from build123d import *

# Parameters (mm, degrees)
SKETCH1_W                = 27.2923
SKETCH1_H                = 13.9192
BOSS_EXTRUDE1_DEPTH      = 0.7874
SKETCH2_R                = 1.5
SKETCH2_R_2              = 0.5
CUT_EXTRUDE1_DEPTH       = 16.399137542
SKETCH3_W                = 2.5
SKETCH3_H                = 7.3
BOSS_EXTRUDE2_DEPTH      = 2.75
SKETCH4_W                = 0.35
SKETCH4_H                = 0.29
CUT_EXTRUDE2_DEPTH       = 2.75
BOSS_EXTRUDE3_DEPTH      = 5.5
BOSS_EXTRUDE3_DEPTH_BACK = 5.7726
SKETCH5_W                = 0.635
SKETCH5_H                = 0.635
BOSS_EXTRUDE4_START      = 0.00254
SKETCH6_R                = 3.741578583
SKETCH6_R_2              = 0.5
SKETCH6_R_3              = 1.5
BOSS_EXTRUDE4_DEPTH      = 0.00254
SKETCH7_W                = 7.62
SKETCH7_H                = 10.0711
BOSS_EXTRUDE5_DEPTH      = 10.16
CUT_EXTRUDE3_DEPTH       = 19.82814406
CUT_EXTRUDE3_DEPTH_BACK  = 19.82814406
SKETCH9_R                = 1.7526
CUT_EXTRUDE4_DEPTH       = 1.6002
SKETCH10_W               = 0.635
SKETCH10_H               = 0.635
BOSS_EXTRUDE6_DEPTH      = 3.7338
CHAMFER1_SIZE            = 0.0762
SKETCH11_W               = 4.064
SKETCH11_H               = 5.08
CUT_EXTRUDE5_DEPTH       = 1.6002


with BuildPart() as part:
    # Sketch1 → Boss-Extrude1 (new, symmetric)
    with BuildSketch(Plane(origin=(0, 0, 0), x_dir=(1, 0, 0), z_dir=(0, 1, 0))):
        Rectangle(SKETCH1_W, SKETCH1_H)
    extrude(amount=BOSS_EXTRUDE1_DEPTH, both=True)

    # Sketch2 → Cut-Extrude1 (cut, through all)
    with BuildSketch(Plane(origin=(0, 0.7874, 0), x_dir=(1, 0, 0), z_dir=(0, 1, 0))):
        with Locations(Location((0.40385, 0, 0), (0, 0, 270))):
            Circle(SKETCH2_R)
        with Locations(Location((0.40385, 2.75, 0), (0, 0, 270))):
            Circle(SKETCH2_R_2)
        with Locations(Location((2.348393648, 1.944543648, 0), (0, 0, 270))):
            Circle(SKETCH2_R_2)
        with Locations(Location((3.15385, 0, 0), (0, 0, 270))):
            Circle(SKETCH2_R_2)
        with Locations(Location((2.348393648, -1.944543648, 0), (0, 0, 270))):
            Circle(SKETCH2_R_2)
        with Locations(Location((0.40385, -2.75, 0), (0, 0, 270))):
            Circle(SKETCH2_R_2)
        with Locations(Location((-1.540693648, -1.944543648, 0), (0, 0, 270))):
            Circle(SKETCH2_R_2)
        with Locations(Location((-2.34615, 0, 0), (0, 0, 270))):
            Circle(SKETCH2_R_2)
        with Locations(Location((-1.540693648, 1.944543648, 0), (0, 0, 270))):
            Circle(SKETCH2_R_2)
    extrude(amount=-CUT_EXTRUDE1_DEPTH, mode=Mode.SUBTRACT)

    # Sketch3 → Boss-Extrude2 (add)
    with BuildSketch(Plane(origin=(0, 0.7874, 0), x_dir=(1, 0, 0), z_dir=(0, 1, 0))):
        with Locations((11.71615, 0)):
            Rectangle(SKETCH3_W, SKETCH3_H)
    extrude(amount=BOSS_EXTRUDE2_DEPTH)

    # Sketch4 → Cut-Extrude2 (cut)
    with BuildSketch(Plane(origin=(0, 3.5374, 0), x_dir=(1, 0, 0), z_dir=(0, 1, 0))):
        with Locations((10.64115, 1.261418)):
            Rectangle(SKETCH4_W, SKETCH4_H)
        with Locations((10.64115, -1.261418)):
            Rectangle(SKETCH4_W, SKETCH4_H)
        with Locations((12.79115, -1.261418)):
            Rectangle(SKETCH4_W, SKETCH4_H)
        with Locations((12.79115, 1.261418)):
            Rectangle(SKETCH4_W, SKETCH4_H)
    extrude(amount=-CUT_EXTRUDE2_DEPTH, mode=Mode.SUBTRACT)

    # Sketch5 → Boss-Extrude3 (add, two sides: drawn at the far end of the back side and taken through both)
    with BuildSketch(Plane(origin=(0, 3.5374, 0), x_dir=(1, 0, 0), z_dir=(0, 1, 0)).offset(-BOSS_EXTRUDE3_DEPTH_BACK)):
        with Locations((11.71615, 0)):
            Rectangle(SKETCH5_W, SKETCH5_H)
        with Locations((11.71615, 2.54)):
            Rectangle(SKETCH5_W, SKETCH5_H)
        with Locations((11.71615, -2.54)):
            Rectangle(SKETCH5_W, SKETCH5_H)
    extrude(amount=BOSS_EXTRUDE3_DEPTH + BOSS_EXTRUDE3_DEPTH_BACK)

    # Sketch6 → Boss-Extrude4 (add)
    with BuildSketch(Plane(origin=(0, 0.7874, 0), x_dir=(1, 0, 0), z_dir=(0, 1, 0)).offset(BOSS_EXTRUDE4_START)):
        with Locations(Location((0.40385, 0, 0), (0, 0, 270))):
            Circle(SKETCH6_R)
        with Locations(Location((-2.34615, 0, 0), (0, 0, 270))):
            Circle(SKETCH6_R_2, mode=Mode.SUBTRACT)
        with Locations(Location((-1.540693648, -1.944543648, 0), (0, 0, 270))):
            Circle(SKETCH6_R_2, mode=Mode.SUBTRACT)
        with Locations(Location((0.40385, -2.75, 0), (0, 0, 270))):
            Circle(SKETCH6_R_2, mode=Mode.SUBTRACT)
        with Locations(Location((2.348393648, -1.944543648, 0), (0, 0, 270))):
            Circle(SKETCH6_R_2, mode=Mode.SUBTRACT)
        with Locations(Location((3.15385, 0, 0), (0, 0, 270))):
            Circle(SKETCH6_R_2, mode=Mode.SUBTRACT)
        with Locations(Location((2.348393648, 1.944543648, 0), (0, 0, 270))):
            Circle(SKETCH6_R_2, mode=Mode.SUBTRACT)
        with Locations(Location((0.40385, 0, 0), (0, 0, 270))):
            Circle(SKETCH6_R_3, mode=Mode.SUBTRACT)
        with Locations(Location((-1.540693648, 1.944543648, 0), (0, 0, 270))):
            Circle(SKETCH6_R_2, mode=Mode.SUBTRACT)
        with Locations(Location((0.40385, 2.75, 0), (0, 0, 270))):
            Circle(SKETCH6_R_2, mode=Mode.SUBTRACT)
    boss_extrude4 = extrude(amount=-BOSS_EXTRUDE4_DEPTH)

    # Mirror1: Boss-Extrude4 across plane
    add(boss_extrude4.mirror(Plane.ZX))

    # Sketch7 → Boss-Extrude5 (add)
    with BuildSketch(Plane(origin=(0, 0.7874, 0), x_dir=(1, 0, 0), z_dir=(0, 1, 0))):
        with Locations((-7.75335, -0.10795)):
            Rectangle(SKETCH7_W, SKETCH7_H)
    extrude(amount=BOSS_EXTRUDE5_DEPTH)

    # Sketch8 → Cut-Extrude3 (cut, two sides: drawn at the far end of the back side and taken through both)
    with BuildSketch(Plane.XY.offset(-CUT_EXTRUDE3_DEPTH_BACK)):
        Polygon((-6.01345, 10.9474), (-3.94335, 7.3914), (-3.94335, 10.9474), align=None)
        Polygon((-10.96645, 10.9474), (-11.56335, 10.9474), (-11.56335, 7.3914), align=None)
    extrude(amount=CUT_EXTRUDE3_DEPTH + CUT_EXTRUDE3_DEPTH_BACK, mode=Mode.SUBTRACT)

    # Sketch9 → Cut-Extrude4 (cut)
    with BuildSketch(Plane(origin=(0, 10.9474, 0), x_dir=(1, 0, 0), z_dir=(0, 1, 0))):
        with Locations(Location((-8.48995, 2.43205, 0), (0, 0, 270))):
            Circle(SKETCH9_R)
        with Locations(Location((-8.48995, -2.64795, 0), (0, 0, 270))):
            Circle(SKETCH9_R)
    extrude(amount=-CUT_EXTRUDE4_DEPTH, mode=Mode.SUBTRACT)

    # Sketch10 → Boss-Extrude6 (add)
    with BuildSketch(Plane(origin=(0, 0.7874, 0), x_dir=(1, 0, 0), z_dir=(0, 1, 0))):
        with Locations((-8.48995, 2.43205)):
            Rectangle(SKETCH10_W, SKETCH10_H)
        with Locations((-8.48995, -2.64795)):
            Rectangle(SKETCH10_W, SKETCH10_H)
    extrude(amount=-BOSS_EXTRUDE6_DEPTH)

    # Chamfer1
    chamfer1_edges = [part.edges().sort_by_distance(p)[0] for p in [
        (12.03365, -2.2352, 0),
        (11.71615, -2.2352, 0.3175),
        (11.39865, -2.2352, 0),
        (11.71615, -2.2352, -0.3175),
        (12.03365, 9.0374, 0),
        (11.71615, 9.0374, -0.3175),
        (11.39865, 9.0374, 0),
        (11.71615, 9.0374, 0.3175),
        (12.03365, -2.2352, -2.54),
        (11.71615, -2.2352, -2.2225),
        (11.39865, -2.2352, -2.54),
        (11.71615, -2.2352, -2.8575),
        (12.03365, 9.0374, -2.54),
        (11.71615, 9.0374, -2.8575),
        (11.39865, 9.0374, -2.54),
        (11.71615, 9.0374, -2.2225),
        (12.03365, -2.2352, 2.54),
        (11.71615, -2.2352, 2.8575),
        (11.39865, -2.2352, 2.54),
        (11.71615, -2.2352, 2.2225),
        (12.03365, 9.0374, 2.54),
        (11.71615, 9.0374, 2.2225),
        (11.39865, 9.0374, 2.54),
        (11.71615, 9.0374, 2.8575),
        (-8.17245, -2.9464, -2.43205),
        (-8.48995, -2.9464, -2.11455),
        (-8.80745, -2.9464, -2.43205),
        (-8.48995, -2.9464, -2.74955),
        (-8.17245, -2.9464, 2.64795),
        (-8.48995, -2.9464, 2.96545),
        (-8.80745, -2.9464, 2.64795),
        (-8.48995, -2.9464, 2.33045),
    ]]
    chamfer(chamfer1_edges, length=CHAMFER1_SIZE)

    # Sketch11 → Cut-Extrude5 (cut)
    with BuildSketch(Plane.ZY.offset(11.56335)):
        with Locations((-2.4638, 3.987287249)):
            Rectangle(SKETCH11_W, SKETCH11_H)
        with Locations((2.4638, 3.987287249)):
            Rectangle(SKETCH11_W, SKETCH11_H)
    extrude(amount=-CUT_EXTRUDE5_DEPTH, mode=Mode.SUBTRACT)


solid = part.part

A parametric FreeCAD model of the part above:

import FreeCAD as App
import Part
import Sketcher

V = App.Vector
Q = App.Units.Quantity


def edges_at(feature, points):
    """Names of the edges that pass closest to the given points."""
    edges = feature.Shape.Edges
    near = lambda p: min(range(len(edges)), key=lambda i: edges[i].distToShape(Part.Vertex(*p))[0])
    return sorted({f"Edge{near(p) + 1}" for p in points})

doc = App.newDocument("Part")
body = doc.addObject("PartDesign::Body", "Body")

# Sketch on XZ plane
sketch1 = body.newObject("Sketcher::SketchObject", "Sketch")
sketch1.AttachmentSupport = (doc.getObject("XZ_Plane"), [""])
sketch1.MapMode = "FlatFace"
sketch1.addGeometry([
    Part.LineSegment(V(-14, -7, 0), V(-14, 7, 0)),
    Part.LineSegment(V(-14, 7, 0), V(14, 7, 0)),
    Part.LineSegment(V(14, 7, 0), V(14, -7, 0)),
    Part.LineSegment(V(14, -7, 0), V(-14, -7, 0)),
], False)
sketch1.addConstraint([
    Sketcher.Constraint("Coincident", 0, 2, 1, 1),
    Sketcher.Constraint("Coincident", 1, 2, 2, 1),
    Sketcher.Constraint("Coincident", 2, 2, 3, 1),
    Sketcher.Constraint("Coincident", 3, 2, 0, 1),
    Sketcher.Constraint("Vertical", 0),
    Sketcher.Constraint("Horizontal", 1),
    Sketcher.Constraint("Vertical", 2),
    Sketcher.Constraint("Horizontal", 3),
    Sketcher.Constraint("Symmetric", 0, 2, 2, 2, -1, 1),
    Sketcher.Constraint("DistanceY", 0, 1, 0, 2, Q("0.548 in")),
    Sketcher.Constraint("DistanceX", 1, 1, 1, 2, Q("1.0745 in")),
])
pad1 = body.newObject("PartDesign::Pad", "Pad")
pad1.Profile = sketch1
pad1.Length = Q("0.062 in")
pad1.Midplane = True

# Sketch on XZ plane
sketch2 = body.newObject("Sketcher::SketchObject", "Sketch001")
sketch2.AttachmentSupport = (doc.getObject("XZ_Plane"), [""])
sketch2.MapMode = "FlatFace"
sketch2.AttachmentOffset = App.Placement(V(0, 0, -0.031 * 25.4), App.Rotation())
sketch2.addGeometry([
    Part.Circle(V(0.4, 0, 0), V(0, 0, 1), 1.5),  # 0
    Part.Circle(V(0.4, -2.8, 0), V(0, 0, 1), 0.5),  # 1
    Part.Circle(V(2.3, -1.9, 0), V(0, 0, 1), 0.5),  # 2
    Part.Circle(V(3.2, 0, 0), V(0, 0, 1), 0.5),  # 3
    Part.Circle(V(2.3, 1.9, 0), V(0, 0, 1), 0.5),  # 4
    Part.Circle(V(0.4, 2.8, 0), V(0, 0, 1), 0.5),  # 5
    Part.Circle(V(-1.5, 1.9, 0), V(0, 0, 1), 0.5),  # 6
    Part.Circle(V(-2.3, 0, 0), V(0, 0, 1), 0.5),  # 7
    Part.Circle(V(-1.5, -1.9, 0), V(0, 0, 1), 0.5),  # 8
], False)
sketch2.addConstraint([
    Sketcher.Constraint("Equal", 1, 2),
    Sketcher.Constraint("Equal", 2, 3),
    Sketcher.Constraint("Equal", 3, 4),
    Sketcher.Constraint("Equal", 4, 5),
    Sketcher.Constraint("Equal", 5, 6),
    Sketcher.Constraint("Equal", 6, 7),
    Sketcher.Constraint("Equal", 7, 8),
    Sketcher.Constraint("Symmetric", 2, 3, 4, 3, -1),
    Sketcher.Constraint("Symmetric", 1, 3, 5, 3, -1),
    Sketcher.Constraint("Symmetric", 6, 3, 8, 3, -1),
    Sketcher.Constraint("PointOnObject", 0, 3, -1),
    Sketcher.Constraint("PointOnObject", 3, 3, -1),
    Sketcher.Constraint("PointOnObject", 7, 3, -1),
    Sketcher.Constraint("Horizontal", 4, 3, 6, 3),
    Sketcher.Constraint("Vertical", 0, 3, 1, 3),
    Sketcher.Constraint("Diameter", 0, Q("3 mm")),
    Sketcher.Constraint("Diameter", 1, Q("1 mm")),
    Sketcher.Constraint("DistanceY", 1, 3, -1, 1, Q("2.75 mm")),
    Sketcher.Constraint("DistanceX", 0, 3, 3, 3, Q("2.75 mm")),
    Sketcher.Constraint("DistanceX", 7, 3, 0, 3, Q("2.75 mm")),
    Sketcher.Constraint("DistanceX", -1, 1, 0, 3, Q("0.40385 mm")),
    Sketcher.Constraint("DistanceX", -1, 1, 2, 3, Q("2.348394 mm")),
    Sketcher.Constraint("DistanceY", 2, 3, -1, 1, Q("1.944544 mm")),
    Sketcher.Constraint("DistanceX", 6, 3, -1, 1, Q("1.540694 mm")),
])
pocket1 = body.newObject("PartDesign::Pocket", "Pocket")
pocket1.Profile = sketch2
pocket1.Type = "ThroughAll"
pocket1.Reversed = True

# Sketch on XZ plane
sketch3 = body.newObject("Sketcher::SketchObject", "Sketch002")
sketch3.AttachmentSupport = (doc.getObject("XZ_Plane"), [""])
sketch3.MapMode = "FlatFace"
sketch3.AttachmentOffset = App.Placement(V(0, 0, -0.031 * 25.4), App.Rotation())
sketch3.addGeometry([
    Part.LineSegment(V(10.5, -3.6, 0), V(10.5, 3.6, 0)),
    Part.LineSegment(V(10.5, 3.6, 0), V(13, 3.6, 0)),
    Part.LineSegment(V(13, 3.6, 0), V(13, -3.6, 0)),
    Part.LineSegment(V(13, -3.6, 0), V(10.5, -3.6, 0)),
], False)
sketch3.addConstraint([
    Sketcher.Constraint("Coincident", 0, 2, 1, 1),
    Sketcher.Constraint("Coincident", 1, 2, 2, 1),
    Sketcher.Constraint("Coincident", 2, 2, 3, 1),
    Sketcher.Constraint("Coincident", 3, 2, 0, 1),
    Sketcher.Constraint("Vertical", 0),
    Sketcher.Constraint("Horizontal", 1),
    Sketcher.Constraint("Vertical", 2),
    Sketcher.Constraint("Horizontal", 3),
    Sketcher.Constraint("DistanceX", 1, 1, 1, 2, Q("2.5 mm")),
    Sketcher.Constraint("DistanceY", 0, 1, 0, 2, Q("7.3 mm")),
    Sketcher.Constraint("DistanceY", -1, 1, 0, 2, Q("3.65 mm")),
    Sketcher.Constraint("DistanceX", -1, 1, 0, 2, Q("10.46615 mm")),
])
pad2 = body.newObject("PartDesign::Pad", "Pad001")
pad2.Profile = sketch3
pad2.Length = 2.75
pad2.Reversed = True

# Sketch on XZ plane
sketch4 = body.newObject("Sketcher::SketchObject", "Sketch003")
sketch4.AttachmentSupport = (doc.getObject("XZ_Plane"), [""])
sketch4.MapMode = "FlatFace"
sketch4.AttachmentOffset = App.Placement(V(0, 0, -3.5374), App.Rotation())
sketch4.addGeometry([
    Part.LineSegment(V(10.47, -1.41, 0), V(10.47, -1.12, 0)),  # 0
    Part.LineSegment(V(10.47, -1.12, 0), V(10.82, -1.12, 0)),  # 1
    Part.LineSegment(V(10.82, -1.12, 0), V(10.82, -1.41, 0)),  # 2
    Part.LineSegment(V(10.82, -1.41, 0), V(10.47, -1.41, 0)),  # 3
    Part.LineSegment(V(10.47, 1.12, 0), V(10.47, 1.41, 0)),  # 4
    Part.LineSegment(V(10.47, 1.41, 0), V(10.82, 1.41, 0)),  # 5
    Part.LineSegment(V(10.82, 1.41, 0), V(10.82, 1.12, 0)),  # 6
    Part.LineSegment(V(10.82, 1.12, 0), V(10.47, 1.12, 0)),  # 7
    Part.LineSegment(V(12.62, 1.12, 0), V(12.62, 1.41, 0)),  # 8
    Part.LineSegment(V(12.62, 1.41, 0), V(12.97, 1.41, 0)),  # 9
    Part.LineSegment(V(12.97, 1.41, 0), V(12.97, 1.12, 0)),  # 10
    Part.LineSegment(V(12.97, 1.12, 0), V(12.62, 1.12, 0)),  # 11
    Part.LineSegment(V(12.62, -1.41, 0), V(12.62, -1.12, 0)),  # 12
    Part.LineSegment(V(12.62, -1.12, 0), V(12.97, -1.12, 0)),  # 13
    Part.LineSegment(V(12.97, -1.12, 0), V(12.97, -1.41, 0)),  # 14
    Part.LineSegment(V(12.97, -1.41, 0), V(12.62, -1.41, 0)),  # 15
], False)
sketch4.addConstraint([
    Sketcher.Constraint("Coincident", 0, 2, 1, 1),
    Sketcher.Constraint("Coincident", 1, 2, 2, 1),
    Sketcher.Constraint("Coincident", 2, 2, 3, 1),
    Sketcher.Constraint("Coincident", 3, 2, 0, 1),
    Sketcher.Constraint("Coincident", 4, 2, 5, 1),
    Sketcher.Constraint("Coincident", 5, 2, 6, 1),
    Sketcher.Constraint("Coincident", 6, 2, 7, 1),
    Sketcher.Constraint("Coincident", 7, 2, 4, 1),
    Sketcher.Constraint("Coincident", 8, 2, 9, 1),
    Sketcher.Constraint("Coincident", 9, 2, 10, 1),
    Sketcher.Constraint("Coincident", 10, 2, 11, 1),
    Sketcher.Constraint("Coincident", 11, 2, 8, 1),
    Sketcher.Constraint("Coincident", 12, 2, 13, 1),
    Sketcher.Constraint("Coincident", 13, 2, 14, 1),
    Sketcher.Constraint("Coincident", 14, 2, 15, 1),
    Sketcher.Constraint("Coincident", 15, 2, 12, 1),
    Sketcher.Constraint("Vertical", 0),
    Sketcher.Constraint("Horizontal", 1),
    Sketcher.Constraint("Vertical", 2),
    Sketcher.Constraint("Horizontal", 3),
    Sketcher.Constraint("Vertical", 4),
    Sketcher.Constraint("Horizontal", 5),
    Sketcher.Constraint("Vertical", 6),
    Sketcher.Constraint("Horizontal", 7),
    Sketcher.Constraint("Vertical", 8),
    Sketcher.Constraint("Horizontal", 9),
    Sketcher.Constraint("Vertical", 10),
    Sketcher.Constraint("Horizontal", 11),
    Sketcher.Constraint("Vertical", 12),
    Sketcher.Constraint("Horizontal", 13),
    Sketcher.Constraint("Vertical", 14),
    Sketcher.Constraint("Horizontal", 15),
    Sketcher.Constraint("Symmetric", 3, 2, 4, 2, -1),
    Sketcher.Constraint("Symmetric", 1, 2, 6, 2, -1),
    Sketcher.Constraint("Symmetric", 11, 2, 12, 2, -1),
    Sketcher.Constraint("Symmetric", 9, 2, 14, 2, -1),
    Sketcher.Constraint("Horizontal", 5, 2, 8, 2),
    Sketcher.Constraint("Horizontal", 7, 2, 10, 2),
    Sketcher.Constraint("Equal", 7, 9),
    Sketcher.Constraint("DistanceX", 1, 1, 1, 2, Q("0.35 mm")),
    Sketcher.Constraint("DistanceY", 0, 1, 0, 2, Q("0.29 mm")),
    Sketcher.Constraint("DistanceX", 5, 2, 8, 2, Q("1.8 mm")),
    Sketcher.Constraint("DistanceX", -1, 1, 0, 2, Q("10.46615 mm")),
    Sketcher.Constraint("DistanceY", 0, 2, -1, 1, Q("1.116418 mm")),
])
pocket2 = body.newObject("PartDesign::Pocket", "Pocket001")
pocket2.Profile = sketch4
pocket2.Length = 2.75
pocket2.Reversed = True

# Sketch on XZ plane
sketch5 = body.newObject("Sketcher::SketchObject", "Sketch004")
sketch5.AttachmentSupport = (doc.getObject("XZ_Plane"), [""])
sketch5.MapMode = "FlatFace"
sketch5.AttachmentOffset = App.Placement(V(0, 0, -3.5374), App.Rotation())
sketch5.addGeometry([
    Part.LineSegment(V(11.4, -0.3, 0), V(11.4, 0.3, 0)),  # 0
    Part.LineSegment(V(11.4, 0.3, 0), V(12, 0.3, 0)),  # 1
    Part.LineSegment(V(12, 0.3, 0), V(12, -0.3, 0)),  # 2
    Part.LineSegment(V(12, -0.3, 0), V(11.4, -0.3, 0)),  # 3
    Part.LineSegment(V(11.4, -2.9, 0), V(11.4, -2.2, 0)),  # 4
    Part.LineSegment(V(11.4, -2.2, 0), V(12, -2.2, 0)),  # 5
    Part.LineSegment(V(12, -2.2, 0), V(12, -2.9, 0)),  # 6
    Part.LineSegment(V(12, -2.9, 0), V(11.4, -2.9, 0)),  # 7
    Part.LineSegment(V(11.4, 2.2, 0), V(11.4, 2.9, 0)),  # 8
    Part.LineSegment(V(11.4, 2.9, 0), V(12, 2.9, 0)),  # 9
    Part.LineSegment(V(12, 2.9, 0), V(12, 2.2, 0)),  # 10
    Part.LineSegment(V(12, 2.2, 0), V(11.4, 2.2, 0)),  # 11
], False)
sketch5.addConstraint([
    Sketcher.Constraint("Coincident", 0, 2, 1, 1),
    Sketcher.Constraint("Coincident", 1, 2, 2, 1),
    Sketcher.Constraint("Coincident", 2, 2, 3, 1),
    Sketcher.Constraint("Coincident", 3, 2, 0, 1),
    Sketcher.Constraint("Coincident", 4, 2, 5, 1),
    Sketcher.Constraint("Coincident", 5, 2, 6, 1),
    Sketcher.Constraint("Coincident", 6, 2, 7, 1),
    Sketcher.Constraint("Coincident", 7, 2, 4, 1),
    Sketcher.Constraint("Coincident", 8, 2, 9, 1),
    Sketcher.Constraint("Coincident", 9, 2, 10, 1),
    Sketcher.Constraint("Coincident", 10, 2, 11, 1),
    Sketcher.Constraint("Coincident", 11, 2, 8, 1),
    Sketcher.Constraint("Vertical", 0),
    Sketcher.Constraint("Horizontal", 1),
    Sketcher.Constraint("Vertical", 2),
    Sketcher.Constraint("Horizontal", 3),
    Sketcher.Constraint("Vertical", 4),
    Sketcher.Constraint("Horizontal", 5),
    Sketcher.Constraint("Vertical", 6),
    Sketcher.Constraint("Horizontal", 7),
    Sketcher.Constraint("Vertical", 8),
    Sketcher.Constraint("Horizontal", 9),
    Sketcher.Constraint("Vertical", 10),
    Sketcher.Constraint("Horizontal", 11),
    Sketcher.Constraint("Symmetric", 7, 2, 8, 2, -1),
    Sketcher.Constraint("Symmetric", 5, 2, 10, 2, -1),
    Sketcher.Constraint("Vertical", 3, 2, 4, 2),
    Sketcher.Constraint("Vertical", 2, 2, 5, 2),
    Sketcher.Constraint("Equal", 11, 0),
    Sketcher.Constraint("Equal", 2, 4),
    Sketcher.Constraint("DistanceY", 4, 2, 0, 2, Q("0.1 in")),
    Sketcher.Constraint("DistanceY", 0, 2, 8, 2, Q("0.1 in")),
    Sketcher.Constraint("DistanceX", 1, 1, 1, 2, Q("0.025 in")),
    Sketcher.Constraint("DistanceX", -1, 1, 0, 2, Q("11.39865 mm")),
])
pad3 = body.newObject("PartDesign::Pad", "Pad002")
pad3.Profile = sketch5
pad3.Type = "TwoLengths"
pad3.Length = 5.5
pad3.Length2 = 5.7726
pad3.Reversed = True

# Sketch on XZ plane
sketch6 = body.newObject("Sketcher::SketchObject", "Sketch005")
sketch6.AttachmentSupport = (doc.getObject("XZ_Plane"), [""])
sketch6.MapMode = "FlatFace"
sketch6.AttachmentOffset = App.Placement(V(0, 0, -0.0311 * 25.4), App.Rotation())
sketch6.addGeometry([
    Part.Circle(V(0.4, 0, 0), V(0, 0, 1), 3.7),  # 0
    Part.Circle(V(-1.5, -1.9, 0), V(0, 0, 1), 0.5),  # 1
    Part.Circle(V(0.4, -2.8, 0), V(0, 0, 1), 0.5),  # 2
    Part.Circle(V(-2.3, 0, 0), V(0, 0, 1), 0.5),  # 3
    Part.Circle(V(-1.5, 1.9, 0), V(0, 0, 1), 0.5),  # 4
    Part.Circle(V(2.3, -1.9, 0), V(0, 0, 1), 0.5),  # 5
    Part.Circle(V(3.2, 0, 0), V(0, 0, 1), 0.5),  # 6
    Part.Circle(V(0.4, 0, 0), V(0, 0, 1), 1.5),  # 7
    Part.Circle(V(0.4, 2.8, 0), V(0, 0, 1), 0.5),  # 8
    Part.Circle(V(2.3, 1.9, 0), V(0, 0, 1), 0.5),  # 9
], False)
sketch6.addConstraint([
    Sketcher.Constraint("Coincident", 7, 3, 0, 3),
    Sketcher.Constraint("Equal", 1, 2),
    Sketcher.Constraint("Equal", 2, 3),
    Sketcher.Constraint("Equal", 3, 4),
    Sketcher.Constraint("Equal", 4, 5),
    Sketcher.Constraint("Equal", 5, 6),
    Sketcher.Constraint("Equal", 6, 8),
    Sketcher.Constraint("Equal", 8, 9),
    Sketcher.Constraint("Symmetric", 1, 3, 4, 3, -1),
    Sketcher.Constraint("Symmetric", 2, 3, 8, 3, -1),
    Sketcher.Constraint("Symmetric", 5, 3, 9, 3, -1),
    Sketcher.Constraint("PointOnObject", 0, 3, -1),
    Sketcher.Constraint("PointOnObject", 3, 3, -1),
    Sketcher.Constraint("PointOnObject", 6, 3, -1),
    Sketcher.Constraint("Horizontal", 1, 3, 5, 3),
    Sketcher.Constraint("Vertical", 0, 3, 2, 3),
    Sketcher.Constraint("Diameter", 1, Q("1 mm")),
    Sketcher.Constraint("Diameter", 7, Q("3 mm")),
    Sketcher.Constraint("Diameter", 0, Q("7.483157 mm")),
    Sketcher.Constraint("DistanceY", 2, 3, -1, 1, Q("2.75 mm")),
    Sketcher.Constraint("DistanceX", 3, 3, 0, 3, Q("2.75 mm")),
    Sketcher.Constraint("DistanceX", 0, 3, 6, 3, Q("2.75 mm")),
    Sketcher.Constraint("DistanceX", -1, 1, 0, 3, Q("0.40385 mm")),
    Sketcher.Constraint("DistanceX", 1, 3, -1, 1, Q("1.540694 mm")),
    Sketcher.Constraint("DistanceY", 1, 3, -1, 1, Q("1.944544 mm")),
    Sketcher.Constraint("DistanceX", -1, 1, 5, 3, Q("2.348394 mm")),
])
pad4 = body.newObject("PartDesign::Pad", "Pad003")
pad4.Profile = sketch6
pad4.Length = Q("0.0001 in")
doc.recompute()

mirrored = body.newObject("PartDesign::Mirrored", "Mirrored")
mirrored.Originals = [pad4]
mirrored.MirrorPlane = (doc.getObject("XZ_Plane"), [""])
body.Tip = mirrored

# Sketch on XZ plane
sketch7 = body.newObject("Sketcher::SketchObject", "Sketch006")
sketch7.AttachmentSupport = (doc.getObject("XZ_Plane"), [""])
sketch7.MapMode = "FlatFace"
sketch7.AttachmentOffset = App.Placement(V(0, 0, -0.031 * 25.4), App.Rotation())
sketch7.addGeometry([
    Part.LineSegment(V(-12, -5, 0), V(-12, 5, 0)),
    Part.LineSegment(V(-12, 5, 0), V(-4, 5, 0)),
    Part.LineSegment(V(-4, 5, 0), V(-4, -5, 0)),
    Part.LineSegment(V(-4, -5, 0), V(-12, -5, 0)),
], False)
sketch7.addConstraint([
    Sketcher.Constraint("Coincident", 0, 2, 1, 1),
    Sketcher.Constraint("Coincident", 1, 2, 2, 1),
    Sketcher.Constraint("Coincident", 2, 2, 3, 1),
    Sketcher.Constraint("Coincident", 3, 2, 0, 1),
    Sketcher.Constraint("Vertical", 0),
    Sketcher.Constraint("Horizontal", 1),
    Sketcher.Constraint("Vertical", 2),
    Sketcher.Constraint("Horizontal", 3),
    Sketcher.Constraint("DistanceX", 1, 1, 1, 2, Q("0.3 in")),
    Sketcher.Constraint("DistanceY", 0, 1, 0, 2, Q("0.3965 in")),
    Sketcher.Constraint("DistanceY", 2, 2, -1, 1, Q("0.194 in")),
    Sketcher.Constraint("DistanceX", 0, 2, -1, 1, Q("11.56335 mm")),
])
pad5 = body.newObject("PartDesign::Pad", "Pad004")
pad5.Profile = sketch7
pad5.Length = Q("0.4 in")
pad5.Reversed = True

# Sketch on XY plane
sketch8 = body.newObject("Sketcher::SketchObject", "Sketch007")
sketch8.AttachmentSupport = (doc.getObject("XY_Plane"), [""])
sketch8.MapMode = "FlatFace"
sketch8.addGeometry([
    Part.LineSegment(V(-6, 10.9, 0), V(-3.9, 7.4, 0)),  # 0
    Part.LineSegment(V(-3.9, 7.4, 0), V(-3.9, 10.9, 0)),  # 1
    Part.LineSegment(V(-3.9, 10.9, 0), V(-6, 10.9, 0)),  # 2
    Part.LineSegment(V(-11, 10.9, 0), V(-11.6, 10.9, 0)),  # 3
    Part.LineSegment(V(-11.6, 10.9, 0), V(-11.6, 7.4, 0)),  # 4
    Part.LineSegment(V(-11.6, 7.4, 0), V(-11, 10.9, 0)),  # 5
], False)
sketch8.addConstraint([
    Sketcher.Constraint("Coincident", 0, 2, 1, 1),
    Sketcher.Constraint("Coincident", 1, 2, 2, 1),
    Sketcher.Constraint("Coincident", 2, 2, 0, 1),
    Sketcher.Constraint("Coincident", 3, 2, 4, 1),
    Sketcher.Constraint("Coincident", 4, 2, 5, 1),
    Sketcher.Constraint("Coincident", 5, 2, 3, 1),
    Sketcher.Constraint("Vertical", 1),
    Sketcher.Constraint("Horizontal", 2),
    Sketcher.Constraint("Horizontal", 3),
    Sketcher.Constraint("Vertical", 4),
    Sketcher.Constraint("Horizontal", 2, 2, 3, 2),
    Sketcher.Constraint("Horizontal", 0, 2, 4, 2),
    Sketcher.Constraint("DistanceY", 1, 1, 1, 2, Q("0.14 in")),
    Sketcher.Constraint("DistanceX", 3, 2, 1, 2, Q("0.3 in")),
    Sketcher.Constraint("DistanceX", 2, 2, 2, 1, Q("0.0815 in")),
    Sketcher.Constraint("DistanceX", 3, 2, 3, 1, Q("0.0235 in")),
    Sketcher.Constraint("DistanceY", -1, 1, 0, 2, Q("0.291 in")),
    Sketcher.Constraint("DistanceX", 0, 2, -1, 1, Q("3.94335 mm")),
])
pocket3 = body.newObject("PartDesign::Pocket", "Pocket002")
pocket3.Profile = sketch8
pocket3.Type = "ThroughAll"
pocket3.Midplane = True

# Sketch on XZ plane
sketch9 = body.newObject("Sketcher::SketchObject", "Sketch008")
sketch9.AttachmentSupport = (doc.getObject("XZ_Plane"), [""])
sketch9.MapMode = "FlatFace"
sketch9.AttachmentOffset = App.Placement(V(0, 0, -0.431 * 25.4), App.Rotation())
sketch9.addGeometry([
    Part.Circle(V(-8.5, -2.4, 0), V(0, 0, 1), 1.8),
    Part.Circle(V(-8.5, 2.6, 0), V(0, 0, 1), 1.8),
], False)
sketch9.addConstraint([
    Sketcher.Constraint("Equal", 0, 1),
    Sketcher.Constraint("Vertical", 0, 3, 1, 3),
    Sketcher.Constraint("Diameter", 0, Q("0.138 in")),
    Sketcher.Constraint("DistanceY", 0, 3, 1, 3, Q("0.2 in")),
    Sketcher.Constraint("DistanceX", 0, 3, -1, 1, Q("8.48995 mm")),
    Sketcher.Constraint("DistanceY", 0, 3, -1, 1, Q("2.43205 mm")),
])
pocket4 = body.newObject("PartDesign::Pocket", "Pocket003")
pocket4.Profile = sketch9
pocket4.Length = Q("0.063 in")
pocket4.Reversed = True

# Sketch on XZ plane
sketch10 = body.newObject("Sketcher::SketchObject", "Sketch009")
sketch10.AttachmentSupport = (doc.getObject("XZ_Plane"), [""])
sketch10.MapMode = "FlatFace"
sketch10.AttachmentOffset = App.Placement(V(0, 0, -0.031 * 25.4), App.Rotation())
sketch10.addGeometry([
    Part.LineSegment(V(-8.8, -2.7, 0), V(-8.8, -2.1, 0)),  # 0
    Part.LineSegment(V(-8.8, -2.1, 0), V(-8.2, -2.1, 0)),  # 1
    Part.LineSegment(V(-8.2, -2.1, 0), V(-8.2, -2.7, 0)),  # 2
    Part.LineSegment(V(-8.2, -2.7, 0), V(-8.8, -2.7, 0)),  # 3
    Part.LineSegment(V(-8.8, 2.3, 0), V(-8.8, 3, 0)),  # 4
    Part.LineSegment(V(-8.8, 3, 0), V(-8.2, 3, 0)),  # 5
    Part.LineSegment(V(-8.2, 3, 0), V(-8.2, 2.3, 0)),  # 6
    Part.LineSegment(V(-8.2, 2.3, 0), V(-8.8, 2.3, 0)),  # 7
], False)
sketch10.addConstraint([
    Sketcher.Constraint("Coincident", 0, 2, 1, 1),
    Sketcher.Constraint("Coincident", 1, 2, 2, 1),
    Sketcher.Constraint("Coincident", 2, 2, 3, 1),
    Sketcher.Constraint("Coincident", 3, 2, 0, 1),
    Sketcher.Constraint("Coincident", 4, 2, 5, 1),
    Sketcher.Constraint("Coincident", 5, 2, 6, 1),
    Sketcher.Constraint("Coincident", 6, 2, 7, 1),
    Sketcher.Constraint("Coincident", 7, 2, 4, 1),
    Sketcher.Constraint("Vertical", 0),
    Sketcher.Constraint("Horizontal", 1),
    Sketcher.Constraint("Vertical", 2),
    Sketcher.Constraint("Horizontal", 3),
    Sketcher.Constraint("Vertical", 4),
    Sketcher.Constraint("Horizontal", 5),
    Sketcher.Constraint("Vertical", 6),
    Sketcher.Constraint("Horizontal", 7),
    Sketcher.Constraint("Vertical", 3, 2, 4, 2),
    Sketcher.Constraint("Vertical", 2, 2, 5, 2),
    Sketcher.Constraint("Equal", 7, 0),
    Sketcher.Constraint("Equal", 2, 4),
    Sketcher.Constraint("DistanceY", 0, 2, 4, 2, Q("0.2 in")),
    Sketcher.Constraint("DistanceX", 1, 1, 1, 2, Q("0.025 in")),
    Sketcher.Constraint("DistanceX", 0, 2, -1, 1, Q("8.80745 mm")),
    Sketcher.Constraint("DistanceY", 0, 2, -1, 1, Q("2.11455 mm")),
])
pad6 = body.newObject("PartDesign::Pad", "Pad005")
pad6.Profile = sketch10
pad6.Length = Q("0.147 in")
doc.recompute()

chamfer = body.newObject("PartDesign::Chamfer", "Chamfer")
chamfer.Base = (pad6, edges_at(pad6, [
    (12.034, -2.235, 0),
    (11.716, -2.235, 0.318),
    (11.399, -2.235, 0),
    (11.716, -2.235, -0.318),
    (12.034, 9.037, 0),
    (11.716, 9.037, -0.318),
    (11.399, 9.037, 0),
    (11.716, 9.037, 0.318),
    (12.034, -2.235, -2.54),
    (11.716, -2.235, -2.223),
    (11.399, -2.235, -2.54),
    (11.716, -2.235, -2.857),
    (12.034, 9.037, -2.54),
    (11.716, 9.037, -2.857),
    (11.399, 9.037, -2.54),
    (11.716, 9.037, -2.223),
    (12.034, -2.235, 2.54),
    (11.716, -2.235, 2.857),
    (11.399, -2.235, 2.54),
    (11.716, -2.235, 2.223),
    (12.034, 9.037, 2.54),
    (11.716, 9.037, 2.223),
    (11.399, 9.037, 2.54),
    (11.716, 9.037, 2.857),
    (-8.172, -2.946, -2.432),
    (-8.49, -2.946, -2.115),
    (-8.807, -2.946, -2.432),
    (-8.49, -2.946, -2.75),
    (-8.172, -2.946, 2.648),
    (-8.49, -2.946, 2.965),
    (-8.807, -2.946, 2.648),
    (-8.49, -2.946, 2.33),
]))
chamfer.Size = Q("0.003 in")

# Sketch on YZ plane
sketch11 = body.newObject("Sketcher::SketchObject", "Sketch010")
sketch11.AttachmentSupport = (doc.getObject("YZ_Plane"), [""])
sketch11.MapMode = "FlatFace"
sketch11.AttachmentOffset = App.Placement(V(0, 0, -11.56335), App.Rotation())
sketch11.addGeometry([
    Part.LineSegment(V(6.5, -4.5, 0), V(1.4, -4.5, 0)),  # 0
    Part.LineSegment(V(1.4, -4.5, 0), V(1.4, -0.4, 0)),  # 1
    Part.LineSegment(V(1.4, -0.4, 0), V(6.5, -0.4, 0)),  # 2
    Part.LineSegment(V(6.5, -0.4, 0), V(6.5, -4.5, 0)),  # 3
    Part.LineSegment(V(6.5, 0.4, 0), V(1.4, 0.4, 0)),  # 4
    Part.LineSegment(V(1.4, 0.4, 0), V(1.4, 4.5, 0)),  # 5
    Part.LineSegment(V(1.4, 4.5, 0), V(6.5, 4.5, 0)),  # 6
    Part.LineSegment(V(6.5, 4.5, 0), V(6.5, 0.4, 0)),  # 7
], False)
sketch11.addConstraint([
    Sketcher.Constraint("Coincident", 0, 2, 1, 1),
    Sketcher.Constraint("Coincident", 1, 2, 2, 1),
    Sketcher.Constraint("Coincident", 2, 2, 3, 1),
    Sketcher.Constraint("Coincident", 3, 2, 0, 1),
    Sketcher.Constraint("Coincident", 4, 2, 5, 1),
    Sketcher.Constraint("Coincident", 5, 2, 6, 1),
    Sketcher.Constraint("Coincident", 6, 2, 7, 1),
    Sketcher.Constraint("Coincident", 7, 2, 4, 1),
    Sketcher.Constraint("Horizontal", 0),
    Sketcher.Constraint("Vertical", 1),
    Sketcher.Constraint("Horizontal", 2),
    Sketcher.Constraint("Vertical", 3),
    Sketcher.Constraint("Horizontal", 4),
    Sketcher.Constraint("Vertical", 5),
    Sketcher.Constraint("Horizontal", 6),
    Sketcher.Constraint("Vertical", 7),
    Sketcher.Constraint("Symmetric", 1, 2, 4, 2, -1),
    Sketcher.Constraint("Symmetric", 3, 2, 6, 2, -1),
    Sketcher.Constraint("DistanceX", 0, 2, 0, 1, Q("0.2 in")),
    Sketcher.Constraint("DistanceY", 1, 1, 1, 2, Q("0.16 in")),
    Sketcher.Constraint("DistanceY", 0, 2, -1, 1, Q("0.177 in")),
    Sketcher.Constraint("DistanceX", -1, 1, 0, 2, Q("1.447287 mm")),
])
pocket5 = body.newObject("PartDesign::Pocket", "Pocket004")
pocket5.Profile = sketch11
pocket5.Length = Q("0.063 in")
pocket5.Reversed = True

doc.recompute()
